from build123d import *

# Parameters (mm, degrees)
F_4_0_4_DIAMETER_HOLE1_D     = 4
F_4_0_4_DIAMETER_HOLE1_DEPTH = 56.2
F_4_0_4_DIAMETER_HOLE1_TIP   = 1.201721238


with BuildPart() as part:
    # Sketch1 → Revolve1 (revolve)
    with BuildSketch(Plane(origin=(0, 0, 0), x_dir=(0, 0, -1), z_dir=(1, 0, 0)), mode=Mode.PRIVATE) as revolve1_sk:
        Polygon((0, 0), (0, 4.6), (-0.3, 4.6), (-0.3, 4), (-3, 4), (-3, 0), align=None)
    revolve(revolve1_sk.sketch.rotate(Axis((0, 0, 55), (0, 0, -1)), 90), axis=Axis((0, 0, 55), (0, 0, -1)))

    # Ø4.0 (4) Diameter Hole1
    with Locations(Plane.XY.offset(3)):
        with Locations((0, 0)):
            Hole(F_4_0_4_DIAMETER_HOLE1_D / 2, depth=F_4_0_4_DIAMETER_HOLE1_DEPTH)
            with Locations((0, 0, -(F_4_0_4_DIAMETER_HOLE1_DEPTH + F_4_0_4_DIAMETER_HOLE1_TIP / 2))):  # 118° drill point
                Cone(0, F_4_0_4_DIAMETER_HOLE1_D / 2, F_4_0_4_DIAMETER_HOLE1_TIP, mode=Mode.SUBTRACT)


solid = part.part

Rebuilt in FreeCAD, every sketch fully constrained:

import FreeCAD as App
import Part
import Sketcher
Q = App.Units.Quantity

doc = App.newDocument("Part")
body = doc.addObject("PartDesign::Body", "Body")

# Sketch on YZ plane
sketch1 = body.newObject("Sketcher::SketchObject", "Sketch")
sketch1.AttachmentSupport = (doc.getObject("YZ_Plane"), [""])
sketch1.MapMode = "FlatFace"
sketch1.addGeometry([
    Part.LineSegment(App.Vector(0, 0, 0), App.Vector(4.6, 0, 0)),  # 0
    Part.LineSegment(App.Vector(4.6, 0, 0), App.Vector(4.6, 0.3, 0)),  # 1
    Part.LineSegment(App.Vector(4.6, 0.3, 0), App.Vector(4, 0.3, 0)),  # 2
    Part.LineSegment(App.Vector(4, 0.3, 0), App.Vector(4, 3, 0)),  # 3
    Part.LineSegment(App.Vector(4, 3, 0), App.Vector(0, 3, 0)),  # 4
    Part.LineSegment(App.Vector(0, 3, 0), App.Vector(0, 0, 0)),  # 5
], False)
sketch1.addConstraint([
    Sketcher.Constraint("Coincident", 0, 2, 1, 1),
    Sketcher.Constraint("Coincident", 1, 2, 2, 1),
    Sketcher.Constraint("Coincident", 2, 2, 3, 1),
    Sketcher.Constraint("Coincident", 3, 2, 4, 1),
    Sketcher.Constraint("Coincident", 4, 2, 5, 1),
    Sketcher.Constraint("Coincident", 5, 2, 0, 1),
    Sketcher.Constraint("Horizontal", 0),
    Sketcher.Constraint("Vertical", 1),
    Sketcher.Constraint("Horizontal", 2),
    Sketcher.Constraint("Vertical", 3),
    Sketcher.Constraint("Horizontal", 4),
    Sketcher.Constraint("Vertical", 5),
    Sketcher.Constraint("Coincident", 5, 2, -1, 1),
    Sketcher.Constraint("DistanceX", 4, 2, 4, 1, Q("4 mm")),
    Sketcher.Constraint("DistanceY", 5, 2, 5, 1, Q("3 mm")),
    Sketcher.Constraint("DistanceX", 0, 1, 0, 2, Q("4.6 mm")),
    Sketcher.Constraint("DistanceY", 1, 1, 1, 2, Q("0.3 mm")),
])
revolution = body.newObject("PartDesign::Revolution", "Revolution")
revolution.Profile = sketch1
revolution.ReferenceAxis = (sketch1, ["V_Axis"])
revolution.Angle = 360

# Sketch on XY plane
sketch2 = body.newObject("Sketcher::SketchObject", "Sketch001")
sketch2.AttachmentSupport = (doc.getObject("XY_Plane"), [""])
sketch2.MapMode = "FlatFace"
sketch2.AttachmentOffset = App.Placement(App.Vector(0, 0, 3), App.Rotation())
sketch2.addGeometry(Part.Circle(App.Vector(0, 0, 0), App.Vector(0, 0, 1), 2), False)
sketch2.addConstraint([
    Sketcher.Constraint("Coincident", 0, 3, -1, 1),
    Sketcher.Constraint("Diameter", 0, Q("4 mm")),
])
doc.recompute()
hole = body.newObject("PartDesign::Hole", "Hole")
hole.Profile = sketch2
hole.ThreadType = "None"
hole.Diameter = 4
hole.DepthType = "Dimension"
hole.Depth = 56.2
hole.DrillPoint = "Angled"
hole.DrillPointAngle = 118

doc.recompute()
